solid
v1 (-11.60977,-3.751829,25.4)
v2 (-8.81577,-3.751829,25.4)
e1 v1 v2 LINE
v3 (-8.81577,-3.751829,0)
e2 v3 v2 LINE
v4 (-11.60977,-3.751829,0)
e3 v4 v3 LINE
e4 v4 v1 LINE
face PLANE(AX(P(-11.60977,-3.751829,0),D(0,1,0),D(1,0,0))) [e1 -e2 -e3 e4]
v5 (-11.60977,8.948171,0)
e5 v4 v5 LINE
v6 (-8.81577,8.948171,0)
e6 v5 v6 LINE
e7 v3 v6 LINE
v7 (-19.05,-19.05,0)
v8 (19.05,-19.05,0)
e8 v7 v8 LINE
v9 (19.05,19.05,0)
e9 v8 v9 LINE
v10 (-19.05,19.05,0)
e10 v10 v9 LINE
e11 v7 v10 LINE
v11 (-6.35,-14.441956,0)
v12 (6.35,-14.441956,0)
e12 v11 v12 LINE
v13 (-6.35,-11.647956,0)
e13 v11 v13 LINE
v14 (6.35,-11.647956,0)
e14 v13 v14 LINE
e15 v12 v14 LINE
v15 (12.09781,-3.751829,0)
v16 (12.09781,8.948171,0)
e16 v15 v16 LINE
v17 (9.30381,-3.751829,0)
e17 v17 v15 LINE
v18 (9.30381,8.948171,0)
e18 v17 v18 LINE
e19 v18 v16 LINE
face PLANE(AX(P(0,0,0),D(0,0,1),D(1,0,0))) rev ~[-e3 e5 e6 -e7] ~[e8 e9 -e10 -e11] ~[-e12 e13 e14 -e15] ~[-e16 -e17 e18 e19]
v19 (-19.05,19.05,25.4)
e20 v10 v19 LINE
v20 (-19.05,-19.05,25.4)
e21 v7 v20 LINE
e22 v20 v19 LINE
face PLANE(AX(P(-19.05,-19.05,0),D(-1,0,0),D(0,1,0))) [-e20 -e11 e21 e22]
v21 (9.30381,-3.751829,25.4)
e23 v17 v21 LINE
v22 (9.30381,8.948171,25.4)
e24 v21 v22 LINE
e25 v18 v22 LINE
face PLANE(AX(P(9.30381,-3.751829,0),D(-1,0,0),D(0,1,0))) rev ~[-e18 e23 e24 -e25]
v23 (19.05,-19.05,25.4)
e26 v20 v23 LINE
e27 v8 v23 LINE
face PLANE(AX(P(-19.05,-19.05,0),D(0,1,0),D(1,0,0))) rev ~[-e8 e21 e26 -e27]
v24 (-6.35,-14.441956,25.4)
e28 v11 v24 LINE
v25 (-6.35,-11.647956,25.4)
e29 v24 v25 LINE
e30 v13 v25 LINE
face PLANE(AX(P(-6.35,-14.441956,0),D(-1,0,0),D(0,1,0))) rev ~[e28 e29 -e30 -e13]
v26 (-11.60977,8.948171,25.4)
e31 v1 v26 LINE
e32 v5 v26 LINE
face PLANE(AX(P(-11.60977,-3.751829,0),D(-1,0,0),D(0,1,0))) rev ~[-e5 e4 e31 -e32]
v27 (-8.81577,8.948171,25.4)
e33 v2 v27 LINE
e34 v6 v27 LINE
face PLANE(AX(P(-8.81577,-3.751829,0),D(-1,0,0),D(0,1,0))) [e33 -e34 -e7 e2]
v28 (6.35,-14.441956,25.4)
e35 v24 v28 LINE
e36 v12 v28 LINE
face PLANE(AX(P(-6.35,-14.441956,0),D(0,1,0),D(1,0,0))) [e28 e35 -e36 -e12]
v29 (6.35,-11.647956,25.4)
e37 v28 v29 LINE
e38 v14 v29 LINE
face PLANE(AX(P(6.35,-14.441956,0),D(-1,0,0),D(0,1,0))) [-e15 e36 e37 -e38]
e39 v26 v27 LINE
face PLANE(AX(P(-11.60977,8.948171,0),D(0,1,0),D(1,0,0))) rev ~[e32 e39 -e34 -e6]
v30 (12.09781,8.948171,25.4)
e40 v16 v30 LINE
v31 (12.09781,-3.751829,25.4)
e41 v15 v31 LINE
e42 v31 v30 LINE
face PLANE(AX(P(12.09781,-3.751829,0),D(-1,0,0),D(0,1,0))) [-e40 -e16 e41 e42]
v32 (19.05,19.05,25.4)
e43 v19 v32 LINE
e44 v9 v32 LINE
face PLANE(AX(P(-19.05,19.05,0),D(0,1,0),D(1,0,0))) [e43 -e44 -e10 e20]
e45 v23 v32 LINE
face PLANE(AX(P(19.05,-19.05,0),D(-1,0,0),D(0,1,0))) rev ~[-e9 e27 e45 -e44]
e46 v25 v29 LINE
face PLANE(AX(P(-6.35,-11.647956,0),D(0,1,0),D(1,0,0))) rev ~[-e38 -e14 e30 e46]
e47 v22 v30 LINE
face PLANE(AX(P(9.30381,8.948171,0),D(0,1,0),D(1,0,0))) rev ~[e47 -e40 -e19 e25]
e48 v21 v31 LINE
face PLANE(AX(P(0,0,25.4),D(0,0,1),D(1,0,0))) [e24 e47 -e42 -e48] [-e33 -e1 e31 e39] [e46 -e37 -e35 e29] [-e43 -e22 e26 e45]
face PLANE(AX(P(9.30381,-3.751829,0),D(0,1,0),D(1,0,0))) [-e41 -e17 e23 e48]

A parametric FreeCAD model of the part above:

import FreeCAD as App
import Part
import Sketcher
from FreeCAD import Vector
Q = App.Units.Quantity

doc = App.newDocument("Part")
body = doc.addObject("PartDesign::Body", "Body")

sketch1 = body.newObject("Sketcher::SketchObject", "Sketch")
sketch1.AttachmentSupport = (doc.getObject("XY_Plane"), [""])
sketch1.MapMode = "FlatFace"
sketch1.addGeometry(Part.LineSegment(Vector(-19.05, 19.05, 0), Vector(-19.05, -19.05, 0)), False)
sketch1.addGeometry(Part.LineSegment(Vector(-19.05, -19.05, 0), Vector(19.05, -19.05, 0)), False)
sketch1.addGeometry(Part.LineSegment(Vector(19.05, -19.05, 0), Vector(19.05, 19.05, 0)), False)
sketch1.addGeometry(Part.LineSegment(Vector(19.05, 19.05, 0), Vector(-19.05, 19.05, 0)), False)
sketch1.addGeometry(Part.LineSegment(Vector(6.35, -14.441956, 0), Vector(-6.35, -14.441956, 0)), False)
sketch1.addGeometry(Part.LineSegment(Vector(-6.35, -14.441956, 0), Vector(-6.35, -11.647956, 0)), False)
sketch1.addGeometry(Part.LineSegment(Vector(-6.35, -11.647956, 0), Vector(6.35, -11.647956, 0)), False)
sketch1.addGeometry(Part.LineSegment(Vector(6.35, -11.647956, 0), Vector(6.35, -14.441956, 0)), False)
sketch1.addGeometry(Part.LineSegment(Vector(-8.81577, -3.751829, 0), Vector(-11.60977, -3.751829, 0)), False)
sketch1.addGeometry(Part.LineSegment(Vector(-11.60977, -3.751829, 0), Vector(-11.60977, 8.948171, 0)), False)
sketch1.addGeometry(Part.LineSegment(Vector(-11.60977, 8.948171, 0), Vector(-8.81577, 8.948171, 0)), False)
sketch1.addGeometry(Part.LineSegment(Vector(-8.81577, 8.948171, 0), Vector(-8.81577, -3.751829, 0)), False)
sketch1.addGeometry(Part.LineSegment(Vector(12.09781, -3.751829, 0), Vector(9.30381, -3.751829, 0)), False)
sketch1.addGeometry(Part.LineSegment(Vector(9.30381, -3.751829, 0), Vector(9.30381, 8.948171, 0)), False)
sketch1.addGeometry(Part.LineSegment(Vector(9.30381, 8.948171, 0), Vector(12.09781, 8.948171, 0)), False)
sketch1.addGeometry(Part.LineSegment(Vector(12.09781, 8.948171, 0), Vector(12.09781, -3.751829, 0)), False)
sketch1.addConstraint(Sketcher.Constraint("Coincident", 0, 2, 1, 1))
sketch1.addConstraint(Sketcher.Constraint("Coincident", 1, 2, 2, 1))
sketch1.addConstraint(Sketcher.Constraint("Coincident", 2, 2, 3, 1))
sketch1.addConstraint(Sketcher.Constraint("Coincident", 3, 2, 0, 1))
sketch1.addConstraint(Sketcher.Constraint("Coincident", 4, 2, 5, 1))
sketch1.addConstraint(Sketcher.Constraint("Coincident", 5, 2, 6, 1))
sketch1.addConstraint(Sketcher.Constraint("Coincident", 6, 2, 7, 1))
sketch1.addConstraint(Sketcher.Constraint("Coincident", 7, 2, 4, 1))
sketch1.addConstraint(Sketcher.Constraint("Coincident", 8, 2, 9, 1))
sketch1.addConstraint(Sketcher.Constraint("Coincident", 9, 2, 10, 1))
sketch1.addConstraint(Sketcher.Constraint("Coincident", 10, 2, 11, 1))
sketch1.addConstraint(Sketcher.Constraint("Coincident", 11, 2, 8, 1))
sketch1.addConstraint(Sketcher.Constraint("Coincident", 12, 2, 13, 1))
sketch1.addConstraint(Sketcher.Constraint("Coincident", 13, 2, 14, 1))
sketch1.addConstraint(Sketcher.Constraint("Coincident", 14, 2, 15, 1))
sketch1.addConstraint(Sketcher.Constraint("Coincident", 15, 2, 12, 1))
sketch1.addConstraint(Sketcher.Constraint("Vertical", 0))
sketch1.addConstraint(Sketcher.Constraint("Horizontal", 1))
sketch1.addConstraint(Sketcher.Constraint("Vertical", 2))
sketch1.addConstraint(Sketcher.Constraint("Horizontal", 3))
sketch1.addConstraint(Sketcher.Constraint("Horizontal", 4))
sketch1.addConstraint(Sketcher.Constraint("Vertical", 5))
sketch1.addConstraint(Sketcher.Constraint("Horizontal", 6))
sketch1.addConstraint(Sketcher.Constraint("Vertical", 7))
sketch1.addConstraint(Sketcher.Constraint("Horizontal", 8))
sketch1.addConstraint(Sketcher.Constraint("Vertical", 9))
sketch1.addConstraint(Sketcher.Constraint("Horizontal", 10))
sketch1.addConstraint(Sketcher.Constraint("Vertical", 11))
sketch1.addConstraint(Sketcher.Constraint("Horizontal", 12))
sketch1.addConstraint(Sketcher.Constraint("Vertical", 13))
sketch1.addConstraint(Sketcher.Constraint("Horizontal", 14))
sketch1.addConstraint(Sketcher.Constraint("Vertical", 15))
sketch1.addConstraint(Sketcher.Constraint("Symmetric", 0, 2, 2, 2, -1, 1))
sketch1.addConstraint(Sketcher.Constraint("Horizontal", 11, 2, 12, 2))
sketch1.addConstraint(Sketcher.Constraint("Horizontal", 10, 2, 13, 2))
sketch1.addConstraint(Sketcher.Constraint("Equal", 10, 12))
sketch1.addConstraint(Sketcher.Constraint("Equal", 3, 0))
sketch1.addConstraint(Sketcher.Constraint("Equal", 14, 5))
sketch1.addConstraint(Sketcher.Constraint("Equal", 6, 9))
sketch1.addConstraint(Sketcher.Constraint("DistanceX", 1, 1, 1, 2, Q("1.5 in")))
sketch1.addConstraint(Sketcher.Constraint("DistanceX", 4, 2, 4, 1, Q("0.5 in")))
sketch1.addConstraint(Sketcher.Constraint("DistanceX", 4, 2, 1, 2, Q("1 in")))
sketch1.addConstraint(Sketcher.Constraint("DistanceX", 8, 2, 8, 1, Q("0.11 in")))
sketch1.addConstraint(Sketcher.Constraint("DistanceX", 8, 2, -1, 1, 11.60977))
sketch1.addConstraint(Sketcher.Constraint("DistanceY", 8, 2, -1, 1, 3.751829))
sketch1.addConstraint(Sketcher.Constraint("DistanceX", -1, 1, 12, 2, 9.30381))
sketch1.addConstraint(Sketcher.Constraint("DistanceY", 4, 2, -1, 1, 14.441956))
pad1 = body.newObject("PartDesign::Pad", "Pad")
pad1.Profile = sketch1
pad1.Length = Q("1 in")

sketch2 = body.newObject("Sketcher::SketchObject", "Sketch001")
sketch2.AttachmentSupport = (doc.getObject("XY_Plane"), [""])
sketch2.MapMode = "FlatFace"
sketch2.addGeometry(Part.LineSegment(Vector(-19.05, 19.05, 0), Vector(-19.05, -19.05, 0)), False)
sketch2.addGeometry(Part.LineSegment(Vector(-19.05, -19.05, 0), Vector(19.05, -19.05, 0)), False)
sketch2.addGeometry(Part.LineSegment(Vector(19.05, -19.05, 0), Vector(19.05, 19.05, 0)), False)
sketch2.addGeometry(Part.LineSegment(Vector(19.05, 19.05, 0), Vector(-19.05, 19.05, 0)), False)
sketch2.addGeometry(Part.LineSegment(Vector(6.35, -14.441956, 0), Vector(-6.35, -14.441956, 0)), False)
sketch2.addGeometry(Part.LineSegment(Vector(-6.35, -14.441956, 0), Vector(-6.35, -11.647956, 0)), False)
sketch2.addGeometry(Part.LineSegment(Vector(-6.35, -11.647956, 0), Vector(6.35, -11.647956, 0)), False)
sketch2.addGeometry(Part.LineSegment(Vector(6.35, -11.647956, 0), Vector(6.35, -14.441956, 0)), False)
sketch2.addGeometry(Part.LineSegment(Vector(-8.81577, -3.751829, 0), Vector(-11.60977, -3.751829, 0)), False)
sketch2.addGeometry(Part.LineSegment(Vector(-11.60977, -3.751829, 0), Vector(-11.60977, 8.948171, 0)), False)
sketch2.addGeometry(Part.LineSegment(Vector(-11.60977, 8.948171, 0), Vector(-8.81577, 8.948171, 0)), False)
sketch2.addGeometry(Part.LineSegment(Vector(-8.81577, 8.948171, 0), Vector(-8.81577, -3.751829, 0)), False)
sketch2.addGeometry(Part.LineSegment(Vector(12.09781, -3.751829, 0), Vector(9.30381, -3.751829, 0)), False)
sketch2.addGeometry(Part.LineSegment(Vector(9.30381, -3.751829, 0), Vector(9.30381, 8.948171, 0)), False)
sketch2.addGeometry(Part.LineSegment(Vector(9.30381, 8.948171, 0), Vector(12.09781, 8.948171, 0)), False)
sketch2.addGeometry(Part.LineSegment(Vector(12.09781, 8.948171, 0), Vector(12.09781, -3.751829, 0)), False)
sketch2.addConstraint(Sketcher.Constraint("Coincident", 0, 2, 1, 1))
sketch2.addConstraint(Sketcher.Constraint("Coincident", 1, 2, 2, 1))
sketch2.addConstraint(Sketcher.Constraint("Coincident", 2, 2, 3, 1))
sketch2.addConstraint(Sketcher.Constraint("Coincident", 3, 2, 0, 1))
sketch2.addConstraint(Sketcher.Constraint("Coincident", 4, 2, 5, 1))
sketch2.addConstraint(Sketcher.Constraint("Coincident", 5, 2, 6, 1))
sketch2.addConstraint(Sketcher.Constraint("Coincident", 6, 2, 7, 1))
sketch2.addConstraint(Sketcher.Constraint("Coincident", 7, 2, 4, 1))
sketch2.addConstraint(Sketcher.Constraint("Coincident", 8, 2, 9, 1))
sketch2.addConstraint(Sketcher.Constraint("Coincident", 9, 2, 10, 1))
sketch2.addConstraint(Sketcher.Constraint("Coincident", 10, 2, 11, 1))
sketch2.addConstraint(Sketcher.Constraint("Coincident", 11, 2, 8, 1))
sketch2.addConstraint(Sketcher.Constraint("Coincident", 12, 2, 13, 1))
sketch2.addConstraint(Sketcher.Constraint("Coincident", 13, 2, 14, 1))
sketch2.addConstraint(Sketcher.Constraint("Coincident", 14, 2, 15, 1))
sketch2.addConstraint(Sketcher.Constraint("Coincident", 15, 2, 12, 1))
sketch2.addConstraint(Sketcher.Constraint("Vertical", 0))
sketch2.addConstraint(Sketcher.Constraint("Horizontal", 1))
sketch2.addConstraint(Sketcher.Constraint("Vertical", 2))
sketch2.addConstraint(Sketcher.Constraint("Horizontal", 3))
sketch2.addConstraint(Sketcher.Constraint("Horizontal", 4))
sketch2.addConstraint(Sketcher.Constraint("Vertical", 5))
sketch2.addConstraint(Sketcher.Constraint("Horizontal", 6))
sketch2.addConstraint(Sketcher.Constraint("Vertical", 7))
sketch2.addConstraint(Sketcher.Constraint("Horizontal", 8))
sketch2.addConstraint(Sketcher.Constraint("Vertical", 9))
sketch2.addConstraint(Sketcher.Constraint("Horizontal", 10))
sketch2.addConstraint(Sketcher.Constraint("Vertical", 11))
sketch2.addConstraint(Sketcher.Constraint("Horizontal", 12))
sketch2.addConstraint(Sketcher.Constraint("Vertical", 13))
sketch2.addConstraint(Sketcher.Constraint("Horizontal", 14))
sketch2.addConstraint(Sketcher.Constraint("Vertical", 15))
sketch2.addConstraint(Sketcher.Constraint("Symmetric", 0, 2, 2, 2, -1, 1))
sketch2.addConstraint(Sketcher.Constraint("Horizontal", 11, 2, 12, 2))
sketch2.addConstraint(Sketcher.Constraint("Horizontal", 10, 2, 13, 2))
sketch2.addConstraint(Sketcher.Constraint("Equal", 10, 12))
sketch2.addConstraint(Sketcher.Constraint("Equal", 3, 0))
sketch2.addConstraint(Sketcher.Constraint("Equal", 14, 5))
sketch2.addConstraint(Sketcher.Constraint("Equal", 6, 9))
sketch2.addConstraint(Sketcher.Constraint("DistanceX", 1, 1, 1, 2, Q("1.5 in")))
sketch2.addConstraint(Sketcher.Constraint("DistanceX", 4, 2, 4, 1, Q("0.5 in")))
sketch2.addConstraint(Sketcher.Constraint("DistanceX", 4, 2, 1, 2, Q("1 in")))
sketch2.addConstraint(Sketcher.Constraint("DistanceX", 8, 2, 8, 1, Q("0.11 in")))
sketch2.addConstraint(Sketcher.Constraint("DistanceX", 8, 2, -1, 1, 11.60977))
sketch2.addConstraint(Sketcher.Constraint("DistanceY", 8, 2, -1, 1, 3.751829))
sketch2.addConstraint(Sketcher.Constraint("DistanceX", -1, 1, 12, 2, 9.30381))
sketch2.addConstraint(Sketcher.Constraint("DistanceY", 4, 2, -1, 1, 14.441956))
pocket1 = body.newObject("PartDesign::Pocket", "Pocket")
pocket1.Profile = sketch2
pocket1.Length = Q("1 in")

doc.recompute()
